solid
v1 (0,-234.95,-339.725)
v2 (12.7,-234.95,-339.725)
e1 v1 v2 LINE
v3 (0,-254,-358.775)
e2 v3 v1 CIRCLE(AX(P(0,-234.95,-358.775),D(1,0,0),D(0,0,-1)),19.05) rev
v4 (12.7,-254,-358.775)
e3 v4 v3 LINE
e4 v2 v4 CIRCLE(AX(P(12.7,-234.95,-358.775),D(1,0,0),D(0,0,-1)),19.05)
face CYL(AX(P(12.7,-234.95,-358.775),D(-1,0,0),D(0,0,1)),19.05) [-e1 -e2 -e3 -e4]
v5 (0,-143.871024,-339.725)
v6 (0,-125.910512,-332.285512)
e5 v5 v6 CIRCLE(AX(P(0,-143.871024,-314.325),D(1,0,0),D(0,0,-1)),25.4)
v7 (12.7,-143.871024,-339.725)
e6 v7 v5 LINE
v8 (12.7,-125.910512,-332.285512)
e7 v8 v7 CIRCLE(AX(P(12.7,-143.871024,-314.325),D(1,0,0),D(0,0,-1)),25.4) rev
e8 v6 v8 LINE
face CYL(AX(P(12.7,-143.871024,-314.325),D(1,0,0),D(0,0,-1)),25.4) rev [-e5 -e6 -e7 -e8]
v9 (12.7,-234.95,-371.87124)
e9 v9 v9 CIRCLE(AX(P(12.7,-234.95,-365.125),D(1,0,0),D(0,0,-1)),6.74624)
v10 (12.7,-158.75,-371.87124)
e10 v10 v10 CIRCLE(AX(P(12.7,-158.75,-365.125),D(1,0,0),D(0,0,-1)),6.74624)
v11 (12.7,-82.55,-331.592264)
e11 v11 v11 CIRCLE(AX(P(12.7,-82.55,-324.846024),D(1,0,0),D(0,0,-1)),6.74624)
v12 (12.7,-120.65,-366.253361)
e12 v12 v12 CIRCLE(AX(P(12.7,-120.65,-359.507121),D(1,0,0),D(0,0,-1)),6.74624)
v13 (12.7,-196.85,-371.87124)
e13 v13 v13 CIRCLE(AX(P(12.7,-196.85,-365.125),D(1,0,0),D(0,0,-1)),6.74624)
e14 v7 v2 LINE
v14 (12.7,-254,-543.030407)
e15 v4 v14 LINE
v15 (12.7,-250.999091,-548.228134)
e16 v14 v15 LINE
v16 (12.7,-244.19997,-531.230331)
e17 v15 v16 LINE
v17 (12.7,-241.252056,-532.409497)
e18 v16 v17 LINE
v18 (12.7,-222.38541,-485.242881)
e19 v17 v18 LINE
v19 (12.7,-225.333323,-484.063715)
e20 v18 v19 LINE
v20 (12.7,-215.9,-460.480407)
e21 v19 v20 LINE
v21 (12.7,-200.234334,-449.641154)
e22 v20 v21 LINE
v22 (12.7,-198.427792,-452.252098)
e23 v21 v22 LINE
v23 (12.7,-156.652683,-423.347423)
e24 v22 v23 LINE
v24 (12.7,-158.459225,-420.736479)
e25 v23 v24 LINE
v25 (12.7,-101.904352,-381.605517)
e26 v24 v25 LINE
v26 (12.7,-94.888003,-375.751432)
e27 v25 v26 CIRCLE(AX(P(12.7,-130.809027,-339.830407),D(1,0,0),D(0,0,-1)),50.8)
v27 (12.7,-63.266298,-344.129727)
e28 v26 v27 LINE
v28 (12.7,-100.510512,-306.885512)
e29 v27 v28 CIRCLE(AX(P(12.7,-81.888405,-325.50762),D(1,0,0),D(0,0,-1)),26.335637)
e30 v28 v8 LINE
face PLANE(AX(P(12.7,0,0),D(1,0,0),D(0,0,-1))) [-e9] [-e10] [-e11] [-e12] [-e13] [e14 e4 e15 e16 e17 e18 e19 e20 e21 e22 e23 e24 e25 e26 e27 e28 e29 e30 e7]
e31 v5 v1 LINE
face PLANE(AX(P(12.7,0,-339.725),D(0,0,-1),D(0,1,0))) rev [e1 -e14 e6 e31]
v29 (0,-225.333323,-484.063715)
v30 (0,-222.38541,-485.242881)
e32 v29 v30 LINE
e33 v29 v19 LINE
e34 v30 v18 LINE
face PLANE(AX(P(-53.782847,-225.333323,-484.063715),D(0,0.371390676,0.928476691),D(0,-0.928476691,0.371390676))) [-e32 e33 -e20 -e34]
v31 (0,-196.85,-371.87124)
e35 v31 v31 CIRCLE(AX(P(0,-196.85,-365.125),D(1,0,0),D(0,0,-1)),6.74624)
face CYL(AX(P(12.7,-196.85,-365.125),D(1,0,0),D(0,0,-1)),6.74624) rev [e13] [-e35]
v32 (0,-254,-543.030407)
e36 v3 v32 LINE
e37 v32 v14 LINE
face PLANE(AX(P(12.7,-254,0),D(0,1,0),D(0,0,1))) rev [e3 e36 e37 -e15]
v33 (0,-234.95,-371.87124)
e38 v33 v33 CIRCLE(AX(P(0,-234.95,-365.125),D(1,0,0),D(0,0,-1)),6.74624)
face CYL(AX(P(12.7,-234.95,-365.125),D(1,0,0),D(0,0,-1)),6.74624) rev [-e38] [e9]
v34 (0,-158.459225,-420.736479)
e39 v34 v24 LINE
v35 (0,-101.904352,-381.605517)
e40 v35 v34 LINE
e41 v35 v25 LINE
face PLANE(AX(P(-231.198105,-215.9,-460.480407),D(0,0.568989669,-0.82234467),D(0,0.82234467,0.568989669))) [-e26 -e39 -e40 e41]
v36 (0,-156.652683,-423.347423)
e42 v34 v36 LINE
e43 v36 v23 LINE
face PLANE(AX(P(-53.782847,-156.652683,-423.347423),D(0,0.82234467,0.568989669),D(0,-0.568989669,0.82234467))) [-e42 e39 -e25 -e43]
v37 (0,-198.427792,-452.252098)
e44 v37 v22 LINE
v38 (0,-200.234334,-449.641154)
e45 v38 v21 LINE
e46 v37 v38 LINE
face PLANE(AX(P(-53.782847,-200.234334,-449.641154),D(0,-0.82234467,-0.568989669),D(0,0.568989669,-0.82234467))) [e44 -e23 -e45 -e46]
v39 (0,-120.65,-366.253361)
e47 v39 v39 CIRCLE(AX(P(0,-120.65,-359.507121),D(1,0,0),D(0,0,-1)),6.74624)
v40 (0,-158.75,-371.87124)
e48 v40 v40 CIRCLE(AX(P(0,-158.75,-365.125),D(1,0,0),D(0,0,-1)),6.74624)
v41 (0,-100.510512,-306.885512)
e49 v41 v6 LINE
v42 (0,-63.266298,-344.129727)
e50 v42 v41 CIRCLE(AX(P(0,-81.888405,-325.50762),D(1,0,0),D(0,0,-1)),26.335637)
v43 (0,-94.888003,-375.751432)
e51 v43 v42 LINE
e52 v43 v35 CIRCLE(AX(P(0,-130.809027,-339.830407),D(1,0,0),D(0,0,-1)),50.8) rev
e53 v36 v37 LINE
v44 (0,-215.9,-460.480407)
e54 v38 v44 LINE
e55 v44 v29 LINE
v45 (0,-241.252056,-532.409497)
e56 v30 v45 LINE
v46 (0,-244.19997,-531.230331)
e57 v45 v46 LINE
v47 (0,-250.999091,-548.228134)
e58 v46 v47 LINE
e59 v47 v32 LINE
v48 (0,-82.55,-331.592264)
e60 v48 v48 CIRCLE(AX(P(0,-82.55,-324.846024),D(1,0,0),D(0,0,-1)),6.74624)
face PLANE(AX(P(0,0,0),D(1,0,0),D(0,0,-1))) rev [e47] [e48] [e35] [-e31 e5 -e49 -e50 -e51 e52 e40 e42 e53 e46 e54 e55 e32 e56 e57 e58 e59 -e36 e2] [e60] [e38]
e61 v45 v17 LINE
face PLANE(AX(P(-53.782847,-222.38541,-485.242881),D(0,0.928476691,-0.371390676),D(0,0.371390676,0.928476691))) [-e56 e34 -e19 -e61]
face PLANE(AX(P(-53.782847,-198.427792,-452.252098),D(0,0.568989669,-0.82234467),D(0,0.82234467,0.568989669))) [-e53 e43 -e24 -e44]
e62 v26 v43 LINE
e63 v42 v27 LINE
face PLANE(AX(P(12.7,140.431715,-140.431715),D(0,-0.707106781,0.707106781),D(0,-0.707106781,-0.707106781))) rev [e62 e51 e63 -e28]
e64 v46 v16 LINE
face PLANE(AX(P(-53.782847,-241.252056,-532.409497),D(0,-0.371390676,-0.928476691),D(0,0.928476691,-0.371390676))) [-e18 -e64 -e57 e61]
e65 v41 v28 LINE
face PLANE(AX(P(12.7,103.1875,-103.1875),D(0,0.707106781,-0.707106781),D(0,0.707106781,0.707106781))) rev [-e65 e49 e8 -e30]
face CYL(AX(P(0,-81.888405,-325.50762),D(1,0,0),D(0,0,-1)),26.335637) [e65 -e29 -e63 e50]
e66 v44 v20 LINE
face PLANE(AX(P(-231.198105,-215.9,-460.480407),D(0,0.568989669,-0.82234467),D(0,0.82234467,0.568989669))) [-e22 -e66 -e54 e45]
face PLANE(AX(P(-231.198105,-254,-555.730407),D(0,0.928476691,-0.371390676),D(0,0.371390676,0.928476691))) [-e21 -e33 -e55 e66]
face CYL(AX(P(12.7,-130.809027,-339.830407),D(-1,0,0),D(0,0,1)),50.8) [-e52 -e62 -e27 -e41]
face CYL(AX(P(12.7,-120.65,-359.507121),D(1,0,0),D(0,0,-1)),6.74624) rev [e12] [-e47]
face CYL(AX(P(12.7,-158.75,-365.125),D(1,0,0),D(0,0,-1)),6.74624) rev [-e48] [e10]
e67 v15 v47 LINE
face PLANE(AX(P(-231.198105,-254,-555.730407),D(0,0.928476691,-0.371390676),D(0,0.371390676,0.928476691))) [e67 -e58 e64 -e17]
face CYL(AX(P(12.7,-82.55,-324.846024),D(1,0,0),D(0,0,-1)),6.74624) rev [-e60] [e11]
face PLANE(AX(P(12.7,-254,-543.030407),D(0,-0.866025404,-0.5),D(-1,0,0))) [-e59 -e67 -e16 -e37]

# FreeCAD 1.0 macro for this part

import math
import FreeCAD as App
import Part
import Sketcher

V = App.Vector
Q = App.Units.Quantity


def edges_at(feature, points):
    """Names of the edges that pass closest to the given points."""
    edges = feature.Shape.Edges
    near = lambda p: min(range(len(edges)), key=lambda i: edges[i].distToShape(Part.Vertex(*p))[0])
    return sorted({f"Edge{near(p) + 1}" for p in points})

doc = App.newDocument("Part")
params = doc.addObject("Spreadsheet::Sheet", "Params")
for row, (alias, value) in enumerate([
    ("sketch1_radius", "2 in"),
    ("sketch1_diameter", "1.5 in"),
    ("sketch1_width", "4.75 in"),
    ("pad1_length", "0.5 in"),
    ("fillet_radius", "1 in"),
    ("fillet2_radius", "2 in"),
    ("hole_diameter", "0.5312 in"),
    ("hole_depth", "1.5 in"),
    ("sketch3_radius", "2 in"),
    ("sketch3_radius2", "1 in"),
    ("sketch3_diameter", "1.5 in"),
    ("sketch4_radius", "2 in"),
    ("sketch4_height", "6.5 in"),
    ("pad2_length", "0.5 in"),
    ("sketch5_length", "2 in"),
    ("sketch5_length2", "0.125 in"),
    ("pad3_length", "0.5 in"),
    ("fillet3_radius", "0.75 in"),
    ("chamfer_size", "0.5 in"),
    ("chamfer_size2", "8.080195 mm"),
], start=1):
    params.set(f"A{row}", alias)
    params.set(f"B{row}", "=" + value)
    params.setAlias(f"B{row}", alias)

body = doc.addObject("PartDesign::Body", "Body")

sketch1 = body.newObject("Sketcher::SketchObject", "Sketch")
sketch1.AttachmentSupport = (doc.getObject("YZ_Plane"), [""])
sketch1.MapMode = "FlatFace"
sketch1.addGeometry([
    Part.LineSegment(V(-110, -391, 0), V(-24, -305, 0)),
    Part.LineSegment(V(-24, -305, 0), V(49, -12, 0)),
    Part.ArcOfCircle(Part.Circle(V(0, 0, 0), V(0, 0, 1), 51), math.radians(-14), math.radians(168)),
    Part.LineSegment(V(-50, 11, 0), V(-75, -282, 0)),
    Part.LineSegment(V(-75, -282, 0), V(-133, -340, 0)),
    Part.LineSegment(V(-133, -340, 0), V(-254, -340, 0)),
    Part.LineSegment(V(-254, -340, 0), V(-254, -391, 0)),
    Part.LineSegment(V(-254, -391, 0), V(-110, -391, 0)),
    Part.Circle(V(0, 0, 0), V(0, 0, 1), 19),
], False)
sketch1.addConstraint([
    Sketcher.Constraint("Coincident", 0, 2, 1, 1),
    Sketcher.Constraint("Tangent", 1, 2, 2, 1),
    Sketcher.Constraint("Coincident", 2, 2, 3, 1),
    Sketcher.Constraint("Coincident", 3, 2, 4, 1),
    Sketcher.Constraint("Coincident", 4, 2, 5, 1),
    Sketcher.Constraint("Coincident", 5, 2, 6, 1),
    Sketcher.Constraint("Coincident", 6, 2, 7, 1),
    Sketcher.Constraint("Coincident", 7, 2, 0, 1),
    Sketcher.Constraint("Horizontal", 5),
    Sketcher.Constraint("Vertical", 6),
    Sketcher.Constraint("Horizontal", 7),
    Sketcher.Constraint("Coincident", 2, 3, -1, 1),
    Sketcher.Constraint("Coincident", 8, 3, -1, 1),
    Sketcher.Constraint("Parallel", 0, 4),
    Sketcher.Constraint("Radius", 2, Q("2 in")),
    Sketcher.Constraint("Diameter", 8, Q("1.5 in")),
    Sketcher.Constraint("DistanceX", 5, 2, -1, 1, Q("10 in")),
    Sketcher.Constraint("Angle", 0, Q("45 deg")),
    Sketcher.Constraint("Angle", 3, Q("-95 deg")),
    Sketcher.Constraint("DistanceX", 3, 2, 0, 2, Q("2 in")),
    Sketcher.Constraint("DistanceX", 5, 2, 5, 1, Q("4.75 in")),
    Sketcher.Constraint("DistanceY", 4, 2, -1, 1, Q("13.375 in")),
    Sketcher.Constraint("Distance", 1, 302.033101),
    Sketcher.Constraint("DistanceX", 7, 1, 7, 2, 144.233022),
    Sketcher.Constraint("DistanceY", 0, 2, 2, 2, 315.9878),
])
sketch1.setExpression("Constraints[14]", "Params.sketch1_radius")
sketch1.setExpression("Constraints[15]", "Params.sketch1_diameter")
sketch1.setExpression("Constraints[20]", "Params.sketch1_width")
pad1 = body.newObject("PartDesign::Pad", "Pad")
pad1.Profile = sketch1
pad1.setExpression("Length", "Params.pad1_length")
doc.recompute()

fillet = body.newObject("PartDesign::Fillet", "Fillet")
fillet.Base = (pad1, edges_at(pad1, [(6.35, -133.35, -339.725), (6.35, -75.236, -281.611)]))
fillet.setExpression("Radius", "Params.fillet_radius")
doc.recompute()

fillet2 = body.newObject("PartDesign::Fillet", "Fillet001")
fillet2.Base = (fillet, edges_at(fillet, [(6.35, -24.436, -305.299), (6.35, -109.767, -390.63)]))
fillet2.setExpression("Radius", "Params.fillet2_radius")

sketch2 = body.newObject("Sketcher::SketchObject", "Sketch001")
sketch2.AttachmentSupport = (doc.getObject("YZ_Plane"), [""])
sketch2.MapMode = "FlatFace"
sketch2.AttachmentOffset = App.Placement(V(0, 0, 0.5 * 25.4), App.Rotation())
sketch2.addGeometry([
    Part.Circle(V(-235, -365, 0), V(0, 0, 1), 7),
    Part.Circle(V(-197, -365, 0), V(0, 0, 1), 7),
    Part.Circle(V(-159, -365, 0), V(0, 0, 1), 7),
    Part.Circle(V(-121, -360, 0), V(0, 0, 1), 7),
    Part.Circle(V(-83, -325, 0), V(0, 0, 1), 7),
], False)
sketch2.addConstraint([
    Sketcher.Constraint("Equal", 0, 1),
    Sketcher.Constraint("Equal", 1, 2),
    Sketcher.Constraint("Equal", 2, 3),
    Sketcher.Constraint("Equal", 3, 4),
    Sketcher.Constraint("Horizontal", 0, 3, 1, 3),
    Sketcher.Constraint("Horizontal", 1, 3, 2, 3),
    Sketcher.Constraint("DistanceX", 0, 3, 2, 3, Q("3 in")),
    Sketcher.Constraint("DistanceX", 1, 3, 3, 3, Q("3 in")),
    Sketcher.Constraint("DistanceX", 2, 3, 4, 3, Q("3 in")),
    Sketcher.Constraint("Diameter", 0, Q("0.5312 in")),
    Sketcher.Constraint("DistanceX", 0, 3, 1, 3, Q("1.5 in")),
    Sketcher.Constraint("DistanceX", 0, 3, -1, 1, Q("9.25 in")),
    Sketcher.Constraint("DistanceY", 0, 3, -1, 1, Q("14.375 in")),
    Sketcher.Constraint("DistanceY", 3, 3, -1, 1, 359.507121),
    Sketcher.Constraint("DistanceY", 4, 3, -1, 1, 324.846024),
])
doc.recompute()
hole = body.newObject("PartDesign::Hole", "Hole")
hole.Profile = sketch2
hole.ThreadType = "None"
hole.setExpression("Diameter", "Params.hole_diameter")
hole.DepthType = "Dimension"
hole.setExpression("Depth", "Params.hole_depth")
hole.DrillPoint = "Angled"
hole.DrillPointAngle = 118

sketch3 = body.newObject("Sketcher::SketchObject", "Sketch002")
sketch3.AttachmentSupport = (doc.getObject("YZ_Plane"), [""])
sketch3.MapMode = "FlatFace"
sketch3.AttachmentOffset = App.Placement(V(0, 0, 0.5 * 25.4), App.Rotation())
sketch3.addGeometry([
    Part.LineSegment(V(-82, -288, 0), V(-101, -307, 0)),
    Part.ArcOfCircle(Part.Circle(V(-82, -326, 0), V(0, 0, 1), 26), math.radians(-45), math.radians(135)),
    Part.LineSegment(V(-63, -344, 0), V(-34, -315, 0)),
    Part.ArcOfCircle(Part.Circle(V(-70, -279, 0), V(0, 0, 1), 51), math.radians(-45), math.radians(-14)),
    Part.LineSegment(V(-21, -292, 0), V(49, -12, 0)),
    Part.ArcOfCircle(Part.Circle(V(0, 0, 0), V(0, 0, 1), 51), math.radians(-14), math.radians(168)),
    Part.LineSegment(V(-50, 11, 0), V(-74, -272, 0)),
    Part.ArcOfCircle(Part.Circle(V(-100, -270, 0), V(0, 0, 1), 25), math.radians(-45), math.radians(-5)),
    Part.Circle(V(0, 0, 0), V(0, 0, 1), 19),
], False)
sketch3.addConstraint([
    Sketcher.Constraint("Tangent", 0, 2, 1, 2),
    Sketcher.Constraint("Tangent", 1, 1, 2, 1),
    Sketcher.Constraint("Tangent", 2, 2, 3, 1),
    Sketcher.Constraint("Tangent", 3, 2, 4, 1),
    Sketcher.Constraint("Tangent", 4, 2, 5, 1),
    Sketcher.Constraint("Coincident", 5, 2, 6, 1),
    Sketcher.Constraint("Tangent", 6, 2, 7, 2),
    Sketcher.Constraint("Tangent", 7, 1, 0, 1),
    Sketcher.Constraint("Coincident", 5, 3, -1, 1),
    Sketcher.Constraint("Coincident", 8, 3, -1, 1),
    Sketcher.Constraint("Equal", 3, 5),
    Sketcher.Constraint("Parallel", 0, 2),
    Sketcher.Constraint("Radius", 3, Q("2 in")),
    Sketcher.Constraint("Radius", 7, Q("1 in")),
    Sketcher.Constraint("Diameter", 8, Q("1.5 in")),
    Sketcher.Constraint("Angle", 0, Q("-135 deg")),
    Sketcher.Constraint("Angle", 6, Q("-95 deg")),
    Sketcher.Constraint("Radius", 1, 26.335637),
    Sketcher.Constraint("DistanceX", 3, 3, 5, 2, 20.614),
    Sketcher.Constraint("Distance", 4, 288.003969),
    Sketcher.Constraint("DistanceY", 1, 3, -1, 1, 325.50762),
    Sketcher.Constraint("DistanceY", 7, 3, -1, 1, 270.187238),
])
sketch3.setExpression("Constraints[12]", "Params.sketch3_radius")
sketch3.setExpression("Constraints[13]", "Params.sketch3_radius2")
sketch3.setExpression("Constraints[14]", "Params.sketch3_diameter")
pocket1 = body.newObject("PartDesign::Pocket", "Pocket")
pocket1.Profile = sketch3
pocket1.Type = "ThroughAll"

sketch4 = body.newObject("Sketcher::SketchObject", "Sketch003")
sketch4.AttachmentSupport = (doc.getObject("YZ_Plane"), [""])
sketch4.MapMode = "FlatFace"
sketch4.AttachmentOffset = App.Placement(V(0, 0, 0.5 * 25.4), App.Rotation())
sketch4.addGeometry([
    Part.LineSegment(V(-254, -391, 0), V(-254, -556, 0)),
    Part.LineSegment(V(-254, -556, 0), V(-216, -460, 0)),
    Part.LineSegment(V(-216, -460, 0), V(-102, -382, 0)),
    Part.ArcOfCircle(Part.Circle(V(-131, -340, 0), V(0, 0, 1), 51), math.radians(-90), math.radians(-55)),
    Part.LineSegment(V(-131, -391, 0), V(-254, -391, 0)),
], False)
sketch4.addConstraint([
    Sketcher.Constraint("Coincident", 0, 2, 1, 1),
    Sketcher.Constraint("Coincident", 1, 2, 2, 1),
    Sketcher.Constraint("Tangent", 2, 2, 3, 2),
    Sketcher.Constraint("Tangent", 3, 1, 4, 1),
    Sketcher.Constraint("Coincident", 4, 2, 0, 1),
    Sketcher.Constraint("Vertical", 0),
    Sketcher.Constraint("Horizontal", 4),
    Sketcher.Constraint("Radius", 3, Q("2 in")),
    Sketcher.Constraint("DistanceY", 0, 2, 0, 1, Q("6.5 in")),
    Sketcher.Constraint("DistanceX", 0, 2, -1, 1, Q("10 in")),
    Sketcher.Constraint("DistanceX", 1, 2, -1, 1, Q("8.5 in")),
    Sketcher.Constraint("DistanceY", 0, 2, 1, 2, Q("3.75 in")),
    Sketcher.Constraint("Distance", 2, 138.622712),
    Sketcher.Constraint("DistanceY", 3, 3, -1, 1, 339.830407),
])
sketch4.setExpression("Constraints[7]", "Params.sketch4_radius")
sketch4.setExpression("Constraints[8]", "Params.sketch4_height")
pad2 = body.newObject("PartDesign::Pad", "Pad001")
pad2.Profile = sketch4
pad2.setExpression("Length", "Params.pad2_length")
pad2.Reversed = True

sketch5 = body.newObject("Sketcher::SketchObject", "Sketch004")
sketch5.AttachmentSupport = (doc.getObject("YZ_Plane"), [""])
sketch5.MapMode = "FlatFace"
sketch5.AttachmentOffset = App.Placement(V(0, 0, 0.5 * 25.4), App.Rotation())
sketch5.addGeometry([
    Part.LineSegment(V(-200.2, -449.6, 0), V(-198.4, -452.3, 0)),
    Part.LineSegment(V(-198.4, -452.3, 0), V(-156.7, -423.3, 0)),
    Part.LineSegment(V(-156.7, -423.3, 0), V(-158.5, -420.7, 0)),
    Part.LineSegment(V(-158.5, -420.7, 0), V(-200.2, -449.6, 0)),
    Part.LineSegment(V(-222.4, -485.2, 0), V(-225.3, -484.1, 0)),
    Part.LineSegment(V(-225.3, -484.1, 0), V(-244.2, -531.2, 0)),
    Part.LineSegment(V(-244.2, -531.2, 0), V(-241.3, -532.4, 0)),
    Part.LineSegment(V(-241.3, -532.4, 0), V(-222.4, -485.2, 0)),
], False)
sketch5.addConstraint([
    Sketcher.Constraint("Coincident", 0, 2, 1, 1),
    Sketcher.Constraint("Coincident", 1, 2, 2, 1),
    Sketcher.Constraint("Coincident", 2, 2, 3, 1),
    Sketcher.Constraint("Coincident", 3, 2, 0, 1),
    Sketcher.Constraint("Coincident", 4, 2, 5, 1),
    Sketcher.Constraint("Coincident", 5, 2, 6, 1),
    Sketcher.Constraint("Coincident", 6, 2, 7, 1),
    Sketcher.Constraint("Coincident", 7, 2, 4, 1),
    Sketcher.Constraint("Perpendicular", 0, 1),
    Sketcher.Constraint("Perpendicular", 1, 2),
    Sketcher.Constraint("Perpendicular", 2, 3),
    Sketcher.Constraint("Perpendicular", 4, 5),
    Sketcher.Constraint("Perpendicular", 5, 6),
    Sketcher.Constraint("Perpendicular", 6, 7),
    Sketcher.Constraint("Equal", 2, 4),
    Sketcher.Constraint("Equal", 3, 5),
    Sketcher.Constraint("Distance", 1, Q("2 in")),
    Sketcher.Constraint("Distance", 0, Q("0.125 in")),
    Sketcher.Constraint("DistanceY", 0, 2, -1, 1, 452.252098),
    Sketcher.Constraint("DistanceX", 4, 2, 2, 2, 66.874098),
    Sketcher.Constraint("DistanceY", 6, 2, 0, 2, 80.157398),
    Sketcher.Constraint("DistanceX", 0, 2, -1, 1, 198.427792),
    Sketcher.Constraint("DistanceY", 2, 2, -1, 1, 420.736479),
    Sketcher.Constraint("DistanceX", 5, 2, -1, 1, 244.19997),
])
sketch5.setExpression("Constraints[16]", "Params.sketch5_length")
sketch5.setExpression("Constraints[17]", "Params.sketch5_length2")
pad3 = body.newObject("PartDesign::Pad", "Pad002")
pad3.Profile = sketch5
pad3.setExpression("Length", "Params.pad3_length")
pad3.Reversed = True
doc.recompute()

fillet3 = body.newObject("PartDesign::Fillet", "Fillet002")
fillet3.Base = (pad3, edges_at(pad3, [(6.35, -254, -339.725)]))
fillet3.setExpression("Radius", "Params.fillet3_radius")
doc.recompute()

chamfer = body.newObject("PartDesign::Chamfer", "Chamfer")
chamfer.Base = (fillet3, edges_at(fillet3, [(6.35, -254, -555.73)]))
chamfer.ChamferType = "Two distances"
chamfer.setExpression("Size", "Params.chamfer_size")
chamfer.setExpression("Size2", "Params.chamfer_size2")

doc.recompute()
